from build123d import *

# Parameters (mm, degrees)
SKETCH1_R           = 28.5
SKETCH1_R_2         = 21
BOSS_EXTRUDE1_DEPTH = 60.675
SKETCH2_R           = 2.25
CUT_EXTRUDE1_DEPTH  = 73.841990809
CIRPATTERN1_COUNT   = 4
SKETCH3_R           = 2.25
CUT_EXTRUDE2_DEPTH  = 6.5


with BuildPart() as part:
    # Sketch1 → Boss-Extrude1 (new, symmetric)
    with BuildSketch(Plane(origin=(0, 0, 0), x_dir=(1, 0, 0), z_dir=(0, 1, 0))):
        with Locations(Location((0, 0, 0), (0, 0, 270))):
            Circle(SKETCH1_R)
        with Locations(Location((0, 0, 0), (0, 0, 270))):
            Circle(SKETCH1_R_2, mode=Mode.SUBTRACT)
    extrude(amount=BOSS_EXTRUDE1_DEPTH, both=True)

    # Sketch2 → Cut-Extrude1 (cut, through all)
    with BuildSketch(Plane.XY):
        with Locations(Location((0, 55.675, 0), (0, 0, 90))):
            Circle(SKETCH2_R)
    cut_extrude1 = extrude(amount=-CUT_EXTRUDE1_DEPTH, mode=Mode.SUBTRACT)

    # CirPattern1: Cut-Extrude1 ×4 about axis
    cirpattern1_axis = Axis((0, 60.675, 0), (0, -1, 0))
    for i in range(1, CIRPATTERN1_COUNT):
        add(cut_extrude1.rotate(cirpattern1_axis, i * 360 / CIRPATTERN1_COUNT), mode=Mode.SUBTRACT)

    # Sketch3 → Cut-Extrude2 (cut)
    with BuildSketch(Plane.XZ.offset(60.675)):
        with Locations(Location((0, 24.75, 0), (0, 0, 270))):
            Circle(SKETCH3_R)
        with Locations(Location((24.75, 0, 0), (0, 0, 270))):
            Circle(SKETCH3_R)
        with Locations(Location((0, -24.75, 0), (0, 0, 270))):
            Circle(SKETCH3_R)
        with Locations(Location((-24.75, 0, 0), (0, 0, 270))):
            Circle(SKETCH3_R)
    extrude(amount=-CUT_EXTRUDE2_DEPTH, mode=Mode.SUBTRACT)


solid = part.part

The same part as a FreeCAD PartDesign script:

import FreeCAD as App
import Part
import Sketcher
from FreeCAD import Vector

doc = App.newDocument("Part")
params = doc.addObject("Spreadsheet::Sheet", "Params")
for row, (alias, value) in enumerate([
    ("sketch1_diameter", "57 mm"),
    ("sketch1_diameter2", "42 mm"),
    ("pad1_length", "121.35 mm"),
    ("sketch2_diameter", "4.5 mm"),
    ("sketch3_diameter", "4.5 mm"),
    ("pocket2_length", "6.5 mm"),
], start=1):
    params.set(f"A{row}", alias)
    params.set(f"B{row}", "=" + value)
    params.setAlias(f"B{row}", alias)

body = doc.addObject("PartDesign::Body", "Body")

# Sketch on XZ plane
sketch1 = doc.addObject("Sketcher::SketchObject", "Sketch")
body.addObject(sketch1)
sketch1.AttachmentSupport = (doc.XZ_Plane, [""])
sketch1.MapMode = "FlatFace"
sketch1.addGeometry([
    Part.Circle(Vector(0, 0, 0), Vector(0, 0, 1), 28),
    Part.Circle(Vector(0, 0, 0), Vector(0, 0, 1), 21),
], False)
sketch1.addConstraint([
    Sketcher.Constraint("Coincident", 0, 3, -1, 1),
    Sketcher.Constraint("Coincident", 1, 3, -1, 1),
    Sketcher.Constraint("Diameter", 0, 57.0),
    Sketcher.Constraint("Diameter", 1, 42.0),
])
sketch1.setExpression("Constraints[2]", "Params.sketch1_diameter")
sketch1.setExpression("Constraints[3]", "Params.sketch1_diameter2")
pad1 = doc.addObject("PartDesign::Pad", "Pad")
body.addObject(pad1)
pad1.Profile = sketch1
pad1.setExpression("Length", "Params.pad1_length")
pad1.Midplane = True

# Sketch on XY plane
sketch2 = doc.addObject("Sketcher::SketchObject", "Sketch001")
body.addObject(sketch2)
sketch2.AttachmentSupport = (doc.XY_Plane, [""])
sketch2.MapMode = "FlatFace"
sketch2.addGeometry(Part.Circle(Vector(0, 55.7, 0), Vector(0, 0, 1), 2.2), False)
sketch2.addConstraint([
    Sketcher.Constraint("PointOnObject", 0, 3, -2),
    Sketcher.Constraint("Diameter", 0, 4.5),
    Sketcher.Constraint("DistanceY", -1, 1, 0, 3, 55.675),
])
sketch2.setExpression("Constraints[1]", "Params.sketch2_diameter")
pocket1 = doc.addObject("PartDesign::Pocket", "Pocket")
body.addObject(pocket1)
pocket1.Profile = sketch2
pocket1.Type = "ThroughAll"
doc.recompute()

polarpattern = doc.addObject("PartDesign::PolarPattern", "PolarPattern")
body.addObject(polarpattern)
polarpattern.Originals = [pocket1]
polarpattern.Axis = (doc.Y_Axis, [""])
polarpattern.Angle = 360
polarpattern.Occurrences = 4
body.Tip = polarpattern

# Sketch on XZ plane
sketch3 = doc.addObject("Sketcher::SketchObject", "Sketch002")
body.addObject(sketch3)
sketch3.AttachmentSupport = (doc.XZ_Plane, [""])
sketch3.MapMode = "FlatFace"
sketch3.AttachmentOffset = App.Placement(Vector(0, 0, 60.675), App.Rotation())
sketch3.addGeometry([
    Part.Circle(Vector(0, 24.8, 0), Vector(0, 0, 1), 2.2),
    Part.Circle(Vector(24.8, 0, 0), Vector(0, 0, 1), 2.2),
    Part.Circle(Vector(0, -24.8, 0), Vector(0, 0, 1), 2.2),
    Part.Circle(Vector(-24.8, 0, 0), Vector(0, 0, 1), 2.2),
], False)
sketch3.addConstraint([
    Sketcher.Constraint("Equal", 0, 1),
    Sketcher.Constraint("Equal", 1, 2),
    Sketcher.Constraint("Equal", 2, 3),
    Sketcher.Constraint("Symmetric", 0, 3, 2, 3, -1, 1),
    Sketcher.Constraint("Symmetric", 1, 3, 3, 3, -1, 1),
    Sketcher.Constraint("PointOnObject", 0, 3, -2),
    Sketcher.Constraint("PointOnObject", 1, 3, -1),
    Sketcher.Constraint("Diameter", 0, 4.5),
    Sketcher.Constraint("DistanceY", 2, 3, 0, 3, 49.5),
    Sketcher.Constraint("DistanceX", 3, 3, 1, 3, 49.5),
])
sketch3.setExpression("Constraints[7]", "Params.sketch3_diameter")
pocket2 = doc.addObject("PartDesign::Pocket", "Pocket001")
body.addObject(pocket2)
pocket2.Profile = sketch3
pocket2.setExpression("Length", "Params.pocket2_length")

doc.recompute()
